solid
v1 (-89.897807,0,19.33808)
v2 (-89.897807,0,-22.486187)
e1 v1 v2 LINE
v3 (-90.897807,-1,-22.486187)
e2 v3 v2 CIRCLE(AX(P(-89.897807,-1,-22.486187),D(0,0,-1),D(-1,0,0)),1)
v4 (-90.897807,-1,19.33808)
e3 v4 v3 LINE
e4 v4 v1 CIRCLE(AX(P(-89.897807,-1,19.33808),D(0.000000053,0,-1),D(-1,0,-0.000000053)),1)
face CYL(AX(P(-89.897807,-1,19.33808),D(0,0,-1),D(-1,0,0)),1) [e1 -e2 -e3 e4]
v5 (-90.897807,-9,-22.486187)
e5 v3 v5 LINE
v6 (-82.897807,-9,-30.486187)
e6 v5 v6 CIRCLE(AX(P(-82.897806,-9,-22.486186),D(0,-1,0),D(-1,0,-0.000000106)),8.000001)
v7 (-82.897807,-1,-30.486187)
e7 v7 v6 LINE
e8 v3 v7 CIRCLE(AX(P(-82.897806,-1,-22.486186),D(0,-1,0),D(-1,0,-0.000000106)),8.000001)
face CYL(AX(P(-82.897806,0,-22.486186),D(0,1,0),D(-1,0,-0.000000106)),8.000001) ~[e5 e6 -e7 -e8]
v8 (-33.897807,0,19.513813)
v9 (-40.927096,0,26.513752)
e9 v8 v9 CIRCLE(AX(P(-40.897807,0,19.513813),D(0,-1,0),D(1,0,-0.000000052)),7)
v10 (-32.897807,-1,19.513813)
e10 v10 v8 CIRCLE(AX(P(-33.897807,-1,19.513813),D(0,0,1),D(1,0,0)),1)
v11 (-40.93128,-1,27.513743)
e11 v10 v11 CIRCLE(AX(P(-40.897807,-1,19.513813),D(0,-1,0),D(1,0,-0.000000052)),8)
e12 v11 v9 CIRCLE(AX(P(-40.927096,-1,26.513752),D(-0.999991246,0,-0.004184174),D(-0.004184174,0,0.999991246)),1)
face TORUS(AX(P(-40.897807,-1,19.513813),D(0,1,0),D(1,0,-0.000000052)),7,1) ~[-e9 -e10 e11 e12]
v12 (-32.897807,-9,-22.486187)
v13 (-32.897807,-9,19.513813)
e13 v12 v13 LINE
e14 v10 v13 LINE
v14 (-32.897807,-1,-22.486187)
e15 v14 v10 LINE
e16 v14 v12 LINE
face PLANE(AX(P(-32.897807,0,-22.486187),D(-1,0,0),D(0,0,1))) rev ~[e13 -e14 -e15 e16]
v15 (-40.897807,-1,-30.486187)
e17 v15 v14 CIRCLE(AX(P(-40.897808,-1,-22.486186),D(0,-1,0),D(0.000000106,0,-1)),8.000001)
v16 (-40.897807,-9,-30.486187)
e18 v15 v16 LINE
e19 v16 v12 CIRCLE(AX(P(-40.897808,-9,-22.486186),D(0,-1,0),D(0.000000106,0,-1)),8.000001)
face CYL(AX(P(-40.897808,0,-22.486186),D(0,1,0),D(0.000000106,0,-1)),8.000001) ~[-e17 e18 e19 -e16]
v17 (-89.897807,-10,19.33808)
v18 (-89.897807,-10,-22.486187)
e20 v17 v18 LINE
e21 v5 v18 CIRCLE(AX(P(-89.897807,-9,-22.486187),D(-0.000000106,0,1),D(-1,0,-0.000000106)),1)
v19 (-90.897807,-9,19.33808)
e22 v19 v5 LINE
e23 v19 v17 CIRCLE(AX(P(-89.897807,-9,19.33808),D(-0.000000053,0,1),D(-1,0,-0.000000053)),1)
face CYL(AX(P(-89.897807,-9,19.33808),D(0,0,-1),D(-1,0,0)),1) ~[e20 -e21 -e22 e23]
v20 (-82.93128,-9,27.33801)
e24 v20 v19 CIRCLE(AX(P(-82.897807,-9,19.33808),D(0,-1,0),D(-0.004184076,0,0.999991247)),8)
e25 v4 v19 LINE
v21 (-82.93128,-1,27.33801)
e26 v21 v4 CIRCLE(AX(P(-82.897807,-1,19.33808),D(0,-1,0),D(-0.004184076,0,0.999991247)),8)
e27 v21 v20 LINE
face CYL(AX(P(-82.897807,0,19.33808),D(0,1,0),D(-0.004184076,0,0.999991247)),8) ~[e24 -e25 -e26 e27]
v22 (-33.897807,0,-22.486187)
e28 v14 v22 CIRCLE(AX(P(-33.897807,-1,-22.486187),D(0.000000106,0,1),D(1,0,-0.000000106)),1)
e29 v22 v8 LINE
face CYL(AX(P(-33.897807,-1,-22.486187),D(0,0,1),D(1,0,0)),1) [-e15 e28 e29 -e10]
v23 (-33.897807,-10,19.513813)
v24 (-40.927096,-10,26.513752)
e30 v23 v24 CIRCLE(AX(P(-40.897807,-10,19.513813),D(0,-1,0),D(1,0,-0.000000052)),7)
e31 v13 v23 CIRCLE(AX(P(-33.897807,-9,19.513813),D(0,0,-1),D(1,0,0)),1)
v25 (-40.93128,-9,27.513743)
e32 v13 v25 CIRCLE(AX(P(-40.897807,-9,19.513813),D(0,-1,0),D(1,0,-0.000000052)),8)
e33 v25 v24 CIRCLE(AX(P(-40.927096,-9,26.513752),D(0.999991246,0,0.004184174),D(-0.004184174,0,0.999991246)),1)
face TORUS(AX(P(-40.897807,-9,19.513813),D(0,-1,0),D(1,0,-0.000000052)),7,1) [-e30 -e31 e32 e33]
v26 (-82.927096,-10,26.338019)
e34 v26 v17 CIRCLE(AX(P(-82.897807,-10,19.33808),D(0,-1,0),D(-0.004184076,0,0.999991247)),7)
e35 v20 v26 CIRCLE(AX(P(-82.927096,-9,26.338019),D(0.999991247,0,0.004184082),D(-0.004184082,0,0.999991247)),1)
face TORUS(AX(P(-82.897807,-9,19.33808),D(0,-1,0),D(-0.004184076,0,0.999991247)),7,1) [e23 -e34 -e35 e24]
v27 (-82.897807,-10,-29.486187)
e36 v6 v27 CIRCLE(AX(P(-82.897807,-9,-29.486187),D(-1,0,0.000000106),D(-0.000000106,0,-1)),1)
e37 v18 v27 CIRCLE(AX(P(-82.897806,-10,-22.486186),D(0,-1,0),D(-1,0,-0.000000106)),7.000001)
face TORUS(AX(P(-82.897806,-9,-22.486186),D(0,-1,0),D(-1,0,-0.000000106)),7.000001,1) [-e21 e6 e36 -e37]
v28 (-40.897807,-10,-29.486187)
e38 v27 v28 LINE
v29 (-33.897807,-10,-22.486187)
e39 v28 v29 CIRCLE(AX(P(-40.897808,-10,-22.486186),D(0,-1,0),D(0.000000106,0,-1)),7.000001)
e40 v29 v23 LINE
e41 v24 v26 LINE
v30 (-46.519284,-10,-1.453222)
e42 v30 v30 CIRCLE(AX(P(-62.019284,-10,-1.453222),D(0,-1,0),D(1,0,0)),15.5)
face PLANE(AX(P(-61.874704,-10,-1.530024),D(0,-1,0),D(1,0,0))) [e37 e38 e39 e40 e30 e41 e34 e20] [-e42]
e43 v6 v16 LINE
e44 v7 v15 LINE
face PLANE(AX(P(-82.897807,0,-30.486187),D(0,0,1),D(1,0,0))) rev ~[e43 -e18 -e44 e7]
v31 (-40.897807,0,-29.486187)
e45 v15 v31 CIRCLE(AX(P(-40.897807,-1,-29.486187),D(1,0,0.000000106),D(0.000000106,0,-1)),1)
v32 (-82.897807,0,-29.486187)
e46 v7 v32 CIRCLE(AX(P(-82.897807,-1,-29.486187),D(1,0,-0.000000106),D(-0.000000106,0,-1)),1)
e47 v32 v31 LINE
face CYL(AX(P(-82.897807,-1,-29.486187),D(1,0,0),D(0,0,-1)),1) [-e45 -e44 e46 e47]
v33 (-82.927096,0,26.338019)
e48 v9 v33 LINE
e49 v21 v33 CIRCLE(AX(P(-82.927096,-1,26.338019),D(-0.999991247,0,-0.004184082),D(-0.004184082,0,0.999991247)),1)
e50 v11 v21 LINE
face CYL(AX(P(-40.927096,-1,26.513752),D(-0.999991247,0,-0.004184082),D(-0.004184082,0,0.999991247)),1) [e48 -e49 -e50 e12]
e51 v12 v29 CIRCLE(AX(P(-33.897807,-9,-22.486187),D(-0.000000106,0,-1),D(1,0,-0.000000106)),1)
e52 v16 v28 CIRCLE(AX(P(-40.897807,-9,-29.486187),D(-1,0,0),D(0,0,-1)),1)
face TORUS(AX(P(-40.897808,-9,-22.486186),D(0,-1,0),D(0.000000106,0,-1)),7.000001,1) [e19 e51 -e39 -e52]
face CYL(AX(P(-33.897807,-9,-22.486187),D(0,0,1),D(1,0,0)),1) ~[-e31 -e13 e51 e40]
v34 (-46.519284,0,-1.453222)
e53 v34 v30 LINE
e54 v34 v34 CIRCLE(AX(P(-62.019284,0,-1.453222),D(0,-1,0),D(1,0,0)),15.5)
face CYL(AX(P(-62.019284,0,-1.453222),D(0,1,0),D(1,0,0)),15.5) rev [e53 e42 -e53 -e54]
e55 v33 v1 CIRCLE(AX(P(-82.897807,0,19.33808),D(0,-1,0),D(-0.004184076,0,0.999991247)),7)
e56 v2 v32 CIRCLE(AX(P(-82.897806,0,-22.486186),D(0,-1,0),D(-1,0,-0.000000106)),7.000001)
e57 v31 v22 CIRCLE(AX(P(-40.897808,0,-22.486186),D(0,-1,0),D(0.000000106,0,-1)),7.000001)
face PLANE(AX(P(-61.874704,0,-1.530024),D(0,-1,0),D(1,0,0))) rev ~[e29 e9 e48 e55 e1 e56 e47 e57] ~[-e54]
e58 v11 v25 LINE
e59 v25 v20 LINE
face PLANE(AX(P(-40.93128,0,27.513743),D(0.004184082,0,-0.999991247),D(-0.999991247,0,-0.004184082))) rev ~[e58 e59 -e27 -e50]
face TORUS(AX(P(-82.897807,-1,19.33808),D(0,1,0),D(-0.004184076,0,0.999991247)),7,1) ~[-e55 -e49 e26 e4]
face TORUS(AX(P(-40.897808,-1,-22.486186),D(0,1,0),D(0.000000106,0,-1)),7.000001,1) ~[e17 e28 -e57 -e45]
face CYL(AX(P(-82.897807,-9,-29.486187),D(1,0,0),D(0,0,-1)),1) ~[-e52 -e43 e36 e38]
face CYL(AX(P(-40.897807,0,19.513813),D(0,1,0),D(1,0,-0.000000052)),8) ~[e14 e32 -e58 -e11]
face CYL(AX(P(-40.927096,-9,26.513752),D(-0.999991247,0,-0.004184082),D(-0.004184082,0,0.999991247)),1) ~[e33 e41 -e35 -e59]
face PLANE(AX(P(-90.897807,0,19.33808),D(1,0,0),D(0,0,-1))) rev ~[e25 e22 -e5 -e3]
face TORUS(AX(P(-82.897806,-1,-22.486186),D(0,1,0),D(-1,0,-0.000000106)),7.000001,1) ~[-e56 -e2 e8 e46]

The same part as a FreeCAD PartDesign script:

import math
import FreeCAD as App
import Part
import Sketcher
from FreeCAD import Vector


def edges_at(feature, points):
    """Names of the edges that pass closest to the given points."""
    edges = feature.Shape.Edges
    near = lambda p: min(range(len(edges)), key=lambda i: edges[i].distToShape(Part.Vertex(*p))[0])
    return sorted({f"Edge{near(p) + 1}" for p in points})

doc = App.newDocument("Part")
body = doc.addObject("PartDesign::Body", "Body")

sketch1 = body.newObject("Sketcher::SketchObject", "Sketch")
sketch1.AttachmentSupport = (doc.getObject("XZ_Plane"), [""])
sketch1.MapMode = "FlatFace"
sketch1.addGeometry([
    Part.ArcOfCircle(Part.Circle(Vector(-83, 19, 0), Vector(0, 0, 1), 8), math.radians(90), math.radians(180)),
    Part.LineSegment(Vector(-91, 19, 0), Vector(-91, -22, 0)),
    Part.ArcOfCircle(Part.Circle(Vector(-83, -22, 0), Vector(0, 0, 1), 8), math.radians(-180), math.radians(-90)),
    Part.LineSegment(Vector(-83, -30, 0), Vector(-41, -30, 0)),
    Part.ArcOfCircle(Part.Circle(Vector(-41, -22, 0), Vector(0, 0, 1), 8), math.radians(-90), math.radians(0)),
    Part.LineSegment(Vector(-33, -22, 0), Vector(-33, 20, 0)),
    Part.ArcOfCircle(Part.Circle(Vector(-41, 20, 0), Vector(0, 0, 1), 8), math.radians(0), math.radians(90)),
    Part.LineSegment(Vector(-41, 28, 0), Vector(-83, 27, 0)),
    Part.Circle(Vector(-62, -1, 0), Vector(0, 0, 1), 16),
], False)
sketch1.addConstraint([
    Sketcher.Constraint("Tangent", 0, 2, 1, 1),
    Sketcher.Constraint("Tangent", 1, 2, 2, 1),
    Sketcher.Constraint("Tangent", 2, 2, 3, 1),
    Sketcher.Constraint("Tangent", 3, 2, 4, 1),
    Sketcher.Constraint("Tangent", 4, 2, 5, 1),
    Sketcher.Constraint("Tangent", 5, 2, 6, 1),
    Sketcher.Constraint("Tangent", 6, 2, 7, 1),
    Sketcher.Constraint("Tangent", 7, 2, 0, 1),
    Sketcher.Constraint("Vertical", 1),
    Sketcher.Constraint("Horizontal", 3),
    Sketcher.Constraint("Vertical", 5),
    Sketcher.Constraint("Equal", 0, 2),
    Sketcher.Constraint("Equal", 2, 4),
    Sketcher.Constraint("Equal", 4, 6),
    Sketcher.Constraint("Equal", 3, 5),
    Sketcher.Constraint("Diameter", 8, 31.0),
    Sketcher.Constraint("Radius", 0, 8.0),
    Sketcher.Constraint("DistanceX", 3, 1, 3, 2, 42.0),
    Sketcher.Constraint("DistanceY", 1, 2, 1, 1, 41.824267),
    Sketcher.Constraint("DistanceY", -1, 1, 0, 3, 19.33808),
    Sketcher.Constraint("DistanceX", 6, 2, -1, 1, 40.93128),
    Sketcher.Constraint("DistanceX", 8, 3, -1, 1, 62.019284),
    Sketcher.Constraint("DistanceY", 8, 3, -1, 1, 1.453222),
])
pad1 = body.newObject("PartDesign::Pad", "Pad")
pad1.Profile = sketch1
pad1.Length = 10
doc.recompute()

fillet = body.newObject("PartDesign::Fillet", "Fillet")
fillet.Base = (pad1, edges_at(pad1, [
    (-88.555, -10, -28.143),
    (-35.241, 0, -28.143),
    (-61.898, 0, -30.486),
    (-90.898, 0, -1.574),
    (-88.555, 0, -28.143),
]))
fillet.Radius = 1

doc.recompute()
